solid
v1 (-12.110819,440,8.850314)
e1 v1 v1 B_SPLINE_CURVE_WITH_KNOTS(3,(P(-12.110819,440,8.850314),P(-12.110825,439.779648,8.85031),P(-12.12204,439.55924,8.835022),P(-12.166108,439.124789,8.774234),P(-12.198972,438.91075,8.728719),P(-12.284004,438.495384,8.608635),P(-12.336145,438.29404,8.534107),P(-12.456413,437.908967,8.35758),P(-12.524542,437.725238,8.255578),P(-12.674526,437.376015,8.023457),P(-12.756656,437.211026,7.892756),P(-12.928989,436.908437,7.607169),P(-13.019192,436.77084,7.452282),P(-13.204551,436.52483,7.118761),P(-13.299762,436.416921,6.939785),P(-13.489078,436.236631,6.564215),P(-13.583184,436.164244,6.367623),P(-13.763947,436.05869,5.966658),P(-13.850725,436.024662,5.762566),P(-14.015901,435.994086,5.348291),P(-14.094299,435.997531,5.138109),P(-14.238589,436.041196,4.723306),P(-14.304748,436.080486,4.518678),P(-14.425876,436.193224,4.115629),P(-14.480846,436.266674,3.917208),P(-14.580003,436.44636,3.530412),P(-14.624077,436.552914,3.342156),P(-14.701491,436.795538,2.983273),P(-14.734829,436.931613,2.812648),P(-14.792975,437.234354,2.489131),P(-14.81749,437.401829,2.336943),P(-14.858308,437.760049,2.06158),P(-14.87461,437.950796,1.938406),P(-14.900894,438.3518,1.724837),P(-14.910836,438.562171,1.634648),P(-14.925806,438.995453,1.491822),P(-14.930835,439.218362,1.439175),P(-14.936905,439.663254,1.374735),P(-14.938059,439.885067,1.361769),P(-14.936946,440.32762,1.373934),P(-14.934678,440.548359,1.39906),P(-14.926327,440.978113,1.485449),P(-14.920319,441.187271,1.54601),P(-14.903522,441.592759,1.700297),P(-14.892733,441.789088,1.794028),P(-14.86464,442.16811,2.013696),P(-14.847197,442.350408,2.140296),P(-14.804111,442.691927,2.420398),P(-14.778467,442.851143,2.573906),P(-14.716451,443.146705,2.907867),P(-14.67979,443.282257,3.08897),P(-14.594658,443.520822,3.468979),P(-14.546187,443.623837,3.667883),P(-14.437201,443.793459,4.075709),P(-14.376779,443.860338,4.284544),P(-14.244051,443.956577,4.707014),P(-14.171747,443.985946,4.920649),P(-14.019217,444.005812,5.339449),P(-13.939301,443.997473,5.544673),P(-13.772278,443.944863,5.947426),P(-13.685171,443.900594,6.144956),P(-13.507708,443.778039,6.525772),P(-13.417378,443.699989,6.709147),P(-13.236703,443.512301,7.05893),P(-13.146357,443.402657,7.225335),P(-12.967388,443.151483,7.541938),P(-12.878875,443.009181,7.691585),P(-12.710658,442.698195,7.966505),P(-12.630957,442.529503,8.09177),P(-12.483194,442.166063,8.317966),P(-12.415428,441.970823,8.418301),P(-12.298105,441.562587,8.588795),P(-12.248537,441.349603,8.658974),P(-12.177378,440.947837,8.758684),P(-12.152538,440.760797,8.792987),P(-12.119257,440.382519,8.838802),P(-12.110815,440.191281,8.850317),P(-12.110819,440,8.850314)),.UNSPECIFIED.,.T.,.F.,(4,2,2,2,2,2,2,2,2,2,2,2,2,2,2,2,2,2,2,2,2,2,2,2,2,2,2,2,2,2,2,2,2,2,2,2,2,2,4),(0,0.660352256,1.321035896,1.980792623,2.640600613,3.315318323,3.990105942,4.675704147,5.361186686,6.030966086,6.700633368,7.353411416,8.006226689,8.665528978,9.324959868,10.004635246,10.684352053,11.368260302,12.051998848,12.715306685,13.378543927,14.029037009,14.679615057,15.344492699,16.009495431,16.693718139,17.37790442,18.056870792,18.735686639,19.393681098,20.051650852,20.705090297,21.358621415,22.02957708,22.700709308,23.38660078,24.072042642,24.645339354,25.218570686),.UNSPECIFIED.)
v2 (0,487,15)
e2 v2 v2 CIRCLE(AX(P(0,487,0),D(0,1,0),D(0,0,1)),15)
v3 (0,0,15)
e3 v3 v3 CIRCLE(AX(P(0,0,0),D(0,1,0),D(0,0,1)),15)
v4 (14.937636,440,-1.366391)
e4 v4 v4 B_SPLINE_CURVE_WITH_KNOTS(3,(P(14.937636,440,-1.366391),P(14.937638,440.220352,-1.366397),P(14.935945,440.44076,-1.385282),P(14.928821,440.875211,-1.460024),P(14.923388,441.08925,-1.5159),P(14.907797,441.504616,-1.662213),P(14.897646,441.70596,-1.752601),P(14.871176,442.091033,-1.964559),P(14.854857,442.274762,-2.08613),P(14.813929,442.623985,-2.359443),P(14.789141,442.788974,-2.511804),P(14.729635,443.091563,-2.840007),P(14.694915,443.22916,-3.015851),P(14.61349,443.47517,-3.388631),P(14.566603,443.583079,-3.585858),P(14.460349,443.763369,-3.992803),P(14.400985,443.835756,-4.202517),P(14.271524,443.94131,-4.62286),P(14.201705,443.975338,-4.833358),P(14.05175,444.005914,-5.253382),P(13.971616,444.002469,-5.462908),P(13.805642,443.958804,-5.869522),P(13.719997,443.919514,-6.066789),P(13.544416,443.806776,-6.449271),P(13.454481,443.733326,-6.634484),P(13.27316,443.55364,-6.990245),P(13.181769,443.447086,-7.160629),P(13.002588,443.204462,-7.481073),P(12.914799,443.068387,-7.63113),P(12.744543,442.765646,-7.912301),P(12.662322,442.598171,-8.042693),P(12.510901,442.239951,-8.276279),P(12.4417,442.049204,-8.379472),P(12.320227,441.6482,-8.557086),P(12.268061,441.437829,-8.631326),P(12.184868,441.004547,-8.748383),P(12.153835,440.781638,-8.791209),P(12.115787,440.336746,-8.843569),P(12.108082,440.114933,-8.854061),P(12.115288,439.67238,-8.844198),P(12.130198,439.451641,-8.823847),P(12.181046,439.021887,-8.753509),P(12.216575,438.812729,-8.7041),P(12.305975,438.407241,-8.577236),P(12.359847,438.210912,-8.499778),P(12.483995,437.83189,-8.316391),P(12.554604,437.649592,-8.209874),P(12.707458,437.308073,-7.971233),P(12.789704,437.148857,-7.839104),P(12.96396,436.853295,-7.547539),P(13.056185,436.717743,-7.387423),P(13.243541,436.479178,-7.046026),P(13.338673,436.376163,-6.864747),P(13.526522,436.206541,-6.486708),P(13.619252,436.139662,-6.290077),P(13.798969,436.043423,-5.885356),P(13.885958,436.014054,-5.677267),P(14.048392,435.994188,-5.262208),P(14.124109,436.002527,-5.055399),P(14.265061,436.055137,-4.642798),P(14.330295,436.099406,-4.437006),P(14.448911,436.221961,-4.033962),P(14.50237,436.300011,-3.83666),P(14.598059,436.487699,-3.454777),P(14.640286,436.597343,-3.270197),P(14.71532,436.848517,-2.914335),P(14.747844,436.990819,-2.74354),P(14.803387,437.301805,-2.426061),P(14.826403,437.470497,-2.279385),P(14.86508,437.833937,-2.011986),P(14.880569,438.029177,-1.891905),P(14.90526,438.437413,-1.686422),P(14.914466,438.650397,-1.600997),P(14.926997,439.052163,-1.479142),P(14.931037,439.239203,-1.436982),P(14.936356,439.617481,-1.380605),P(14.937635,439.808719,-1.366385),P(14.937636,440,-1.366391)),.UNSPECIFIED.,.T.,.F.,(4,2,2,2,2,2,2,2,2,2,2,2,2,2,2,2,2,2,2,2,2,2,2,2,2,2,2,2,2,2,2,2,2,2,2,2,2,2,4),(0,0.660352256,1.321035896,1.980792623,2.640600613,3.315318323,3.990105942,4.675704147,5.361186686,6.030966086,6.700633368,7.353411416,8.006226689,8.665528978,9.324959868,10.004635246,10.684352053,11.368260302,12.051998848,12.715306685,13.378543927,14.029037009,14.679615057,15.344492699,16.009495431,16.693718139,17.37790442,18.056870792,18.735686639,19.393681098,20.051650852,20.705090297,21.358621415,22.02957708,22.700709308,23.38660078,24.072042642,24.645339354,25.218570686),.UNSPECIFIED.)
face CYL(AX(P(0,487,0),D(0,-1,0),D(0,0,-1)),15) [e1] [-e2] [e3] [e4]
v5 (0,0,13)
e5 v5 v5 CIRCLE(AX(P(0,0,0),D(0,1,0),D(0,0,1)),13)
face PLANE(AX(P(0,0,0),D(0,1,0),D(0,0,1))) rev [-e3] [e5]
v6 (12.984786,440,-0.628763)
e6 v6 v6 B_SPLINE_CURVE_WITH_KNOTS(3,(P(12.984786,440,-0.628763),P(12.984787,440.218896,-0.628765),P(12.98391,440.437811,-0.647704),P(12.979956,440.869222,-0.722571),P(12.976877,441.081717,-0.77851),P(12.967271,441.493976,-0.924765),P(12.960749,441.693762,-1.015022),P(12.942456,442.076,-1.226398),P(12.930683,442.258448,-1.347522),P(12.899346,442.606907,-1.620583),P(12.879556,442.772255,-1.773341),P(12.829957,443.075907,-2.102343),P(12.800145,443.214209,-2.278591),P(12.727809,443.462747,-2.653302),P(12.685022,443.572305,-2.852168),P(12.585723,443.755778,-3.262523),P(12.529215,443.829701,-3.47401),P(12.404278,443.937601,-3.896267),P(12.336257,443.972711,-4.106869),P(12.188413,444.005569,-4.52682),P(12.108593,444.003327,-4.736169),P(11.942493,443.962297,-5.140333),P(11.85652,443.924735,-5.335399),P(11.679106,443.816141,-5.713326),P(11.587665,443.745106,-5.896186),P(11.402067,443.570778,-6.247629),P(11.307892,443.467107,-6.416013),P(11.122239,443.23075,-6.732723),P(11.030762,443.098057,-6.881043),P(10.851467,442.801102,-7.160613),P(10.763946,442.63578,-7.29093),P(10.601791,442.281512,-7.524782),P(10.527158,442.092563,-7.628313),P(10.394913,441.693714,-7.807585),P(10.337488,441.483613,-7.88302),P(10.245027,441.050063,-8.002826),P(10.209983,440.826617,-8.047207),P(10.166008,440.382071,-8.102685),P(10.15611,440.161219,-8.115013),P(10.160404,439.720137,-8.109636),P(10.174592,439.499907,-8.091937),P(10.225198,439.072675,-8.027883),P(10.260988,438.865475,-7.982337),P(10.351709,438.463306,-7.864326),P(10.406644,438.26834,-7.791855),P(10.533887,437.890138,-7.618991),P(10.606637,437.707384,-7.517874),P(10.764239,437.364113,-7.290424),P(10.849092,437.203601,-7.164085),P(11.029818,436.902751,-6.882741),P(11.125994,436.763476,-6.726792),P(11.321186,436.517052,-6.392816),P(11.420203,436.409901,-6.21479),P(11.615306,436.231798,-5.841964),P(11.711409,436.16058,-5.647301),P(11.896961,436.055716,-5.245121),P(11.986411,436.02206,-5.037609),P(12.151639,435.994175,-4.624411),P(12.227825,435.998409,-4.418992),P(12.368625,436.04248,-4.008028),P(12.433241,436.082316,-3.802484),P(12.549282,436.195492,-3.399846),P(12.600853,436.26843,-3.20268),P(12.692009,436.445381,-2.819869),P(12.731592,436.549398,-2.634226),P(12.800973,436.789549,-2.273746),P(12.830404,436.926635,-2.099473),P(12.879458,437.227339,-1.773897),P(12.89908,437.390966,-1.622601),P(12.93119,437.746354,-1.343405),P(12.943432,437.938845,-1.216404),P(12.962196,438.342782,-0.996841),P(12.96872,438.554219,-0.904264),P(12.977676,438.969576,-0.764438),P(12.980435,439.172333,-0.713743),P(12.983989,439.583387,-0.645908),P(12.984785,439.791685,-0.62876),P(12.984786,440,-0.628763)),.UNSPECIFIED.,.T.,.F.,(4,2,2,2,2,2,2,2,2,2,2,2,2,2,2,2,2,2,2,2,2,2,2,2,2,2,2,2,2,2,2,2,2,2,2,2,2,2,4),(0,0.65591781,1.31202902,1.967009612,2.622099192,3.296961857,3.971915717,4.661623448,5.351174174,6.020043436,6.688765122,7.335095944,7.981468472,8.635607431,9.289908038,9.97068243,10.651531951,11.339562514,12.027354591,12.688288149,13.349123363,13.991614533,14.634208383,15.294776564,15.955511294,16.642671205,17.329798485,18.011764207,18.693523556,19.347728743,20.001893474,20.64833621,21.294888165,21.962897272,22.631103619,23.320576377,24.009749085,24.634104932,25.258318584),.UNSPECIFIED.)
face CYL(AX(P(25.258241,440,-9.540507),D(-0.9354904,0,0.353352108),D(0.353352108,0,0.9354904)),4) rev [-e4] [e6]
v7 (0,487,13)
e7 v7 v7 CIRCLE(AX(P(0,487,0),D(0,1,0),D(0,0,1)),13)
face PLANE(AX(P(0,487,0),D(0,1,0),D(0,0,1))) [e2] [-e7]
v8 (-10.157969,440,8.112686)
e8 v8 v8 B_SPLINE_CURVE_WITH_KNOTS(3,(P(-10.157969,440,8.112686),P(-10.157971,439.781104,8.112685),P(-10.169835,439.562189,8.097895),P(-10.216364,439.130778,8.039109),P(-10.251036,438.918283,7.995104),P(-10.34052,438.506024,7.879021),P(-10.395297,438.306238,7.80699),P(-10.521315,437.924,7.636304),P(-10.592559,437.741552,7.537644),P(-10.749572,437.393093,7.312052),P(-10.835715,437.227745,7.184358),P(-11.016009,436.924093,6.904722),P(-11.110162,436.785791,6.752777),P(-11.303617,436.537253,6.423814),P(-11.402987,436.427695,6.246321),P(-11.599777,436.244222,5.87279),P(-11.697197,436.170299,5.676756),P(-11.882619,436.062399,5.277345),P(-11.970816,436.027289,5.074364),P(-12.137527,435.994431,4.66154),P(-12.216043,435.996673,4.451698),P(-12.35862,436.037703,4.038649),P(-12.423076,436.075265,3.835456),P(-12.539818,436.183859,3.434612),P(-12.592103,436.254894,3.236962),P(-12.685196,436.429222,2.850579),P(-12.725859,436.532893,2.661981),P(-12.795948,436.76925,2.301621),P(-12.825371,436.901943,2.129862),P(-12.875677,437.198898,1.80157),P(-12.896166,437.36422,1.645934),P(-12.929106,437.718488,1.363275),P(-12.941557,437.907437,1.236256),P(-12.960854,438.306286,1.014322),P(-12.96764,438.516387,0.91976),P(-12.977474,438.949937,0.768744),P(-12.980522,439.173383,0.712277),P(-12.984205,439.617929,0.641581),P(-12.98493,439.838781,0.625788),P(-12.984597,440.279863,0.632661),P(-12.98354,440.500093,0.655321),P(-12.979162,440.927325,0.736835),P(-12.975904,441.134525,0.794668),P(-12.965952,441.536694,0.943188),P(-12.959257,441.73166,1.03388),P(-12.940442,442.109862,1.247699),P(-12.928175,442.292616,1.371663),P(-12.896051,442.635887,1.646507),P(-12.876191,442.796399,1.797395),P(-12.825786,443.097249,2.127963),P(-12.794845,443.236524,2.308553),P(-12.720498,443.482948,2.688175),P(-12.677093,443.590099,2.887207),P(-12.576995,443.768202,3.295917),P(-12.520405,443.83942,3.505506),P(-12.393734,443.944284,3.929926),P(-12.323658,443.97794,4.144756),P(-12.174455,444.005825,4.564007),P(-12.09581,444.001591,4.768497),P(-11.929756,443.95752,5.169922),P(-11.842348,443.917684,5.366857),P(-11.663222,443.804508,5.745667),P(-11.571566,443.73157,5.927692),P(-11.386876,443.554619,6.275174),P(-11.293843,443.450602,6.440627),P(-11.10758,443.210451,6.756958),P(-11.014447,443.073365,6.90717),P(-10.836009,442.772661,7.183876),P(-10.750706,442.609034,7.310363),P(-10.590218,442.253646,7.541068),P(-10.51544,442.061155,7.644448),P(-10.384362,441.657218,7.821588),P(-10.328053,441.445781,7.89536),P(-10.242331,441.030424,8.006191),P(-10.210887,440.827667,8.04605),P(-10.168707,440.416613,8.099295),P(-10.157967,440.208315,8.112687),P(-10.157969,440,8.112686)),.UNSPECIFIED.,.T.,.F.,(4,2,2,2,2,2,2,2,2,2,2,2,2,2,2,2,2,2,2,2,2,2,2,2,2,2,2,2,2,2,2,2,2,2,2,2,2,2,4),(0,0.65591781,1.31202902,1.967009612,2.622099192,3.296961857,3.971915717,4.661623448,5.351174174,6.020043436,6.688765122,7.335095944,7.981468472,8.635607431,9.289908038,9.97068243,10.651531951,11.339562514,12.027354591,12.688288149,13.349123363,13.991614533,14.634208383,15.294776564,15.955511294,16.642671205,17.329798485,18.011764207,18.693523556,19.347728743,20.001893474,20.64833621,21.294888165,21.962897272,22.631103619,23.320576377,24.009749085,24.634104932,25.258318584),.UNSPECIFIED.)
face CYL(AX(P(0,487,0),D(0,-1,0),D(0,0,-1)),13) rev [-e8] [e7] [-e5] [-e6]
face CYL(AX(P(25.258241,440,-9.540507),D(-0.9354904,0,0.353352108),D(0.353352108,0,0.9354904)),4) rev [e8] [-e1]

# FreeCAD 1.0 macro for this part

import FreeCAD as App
import Part
import Sketcher
from FreeCAD import Vector
Q = App.Units.Quantity

doc = App.newDocument("Part")
params = doc.addObject("Spreadsheet::Sheet", "Params")
for row, (alias, value) in enumerate([
    ("sketch1_diameter", "30 mm"),
    ("sketch1_diameter2", "26 mm"),
    ("pad1_length", "487 mm"),
    ("sketch2_diameter", "8 mm"),
    ("pocket1_length", "95 mm"),
], start=1):
    params.set(f"A{row}", alias)
    params.set(f"B{row}", "=" + value)
    params.setAlias(f"B{row}", alias)

body = doc.addObject("PartDesign::Body", "Body")

sketch1 = doc.addObject("Sketcher::SketchObject", "Sketch")
body.addObject(sketch1)
sketch1.AttachmentSupport = (doc.XZ_Plane, [""])
sketch1.MapMode = "FlatFace"
sketch1.addGeometry(Part.Circle(Vector(0, 0, 0), Vector(0, 0, 1), 15), False)
sketch1.addGeometry(Part.Circle(Vector(0, 0, 0), Vector(0, 0, 1), 13), False)
sketch1.addConstraint(Sketcher.Constraint("Coincident", 0, 3, -1, 1))
sketch1.addConstraint(Sketcher.Constraint("Coincident", 1, 3, -1, 1))
sketch1.addConstraint(Sketcher.Constraint("Diameter", 0, Q("30 mm")))
sketch1.addConstraint(Sketcher.Constraint("Diameter", 1, Q("26 mm")))
sketch1.setExpression("Constraints[2]", "Params.sketch1_diameter")
sketch1.setExpression("Constraints[3]", "Params.sketch1_diameter2")
pad1 = doc.addObject("PartDesign::Pad", "Pad")
body.addObject(pad1)
pad1.Profile = sketch1
pad1.setExpression("Length", "Params.pad1_length")
pad1.Reversed = True

sketch2 = doc.addObject("Sketcher::SketchObject", "Sketch001")
body.addObject(sketch2)
sketch2.Placement = App.Placement(Vector(-19.177553, 0, 7.243718), App.Rotation(Vector(0.353352108, 0, 0.9354904), Vector(0, 1.000000001, 0), Vector(-0.9354904, 0, 0.353352108), "ZXY"))
sketch2.addGeometry(Part.Circle(Vector(0, 440, 0), Vector(0, 0, 1), 4), False)
sketch2.addConstraint(Sketcher.Constraint("PointOnObject", 0, 3, -2))
sketch2.addConstraint(Sketcher.Constraint("Diameter", 0, Q("8 mm")))
sketch2.addConstraint(Sketcher.Constraint("DistanceY", -1, 1, 0, 3, Q("440.000001 mm")))
sketch2.setExpression("Constraints[1]", "Params.sketch2_diameter")
pocket1 = doc.addObject("PartDesign::Pocket", "Pocket")
body.addObject(pocket1)
pocket1.Profile = sketch2
pocket1.setExpression("Length", "Params.pocket1_length")
pocket1.Midplane = True

doc.recompute()
